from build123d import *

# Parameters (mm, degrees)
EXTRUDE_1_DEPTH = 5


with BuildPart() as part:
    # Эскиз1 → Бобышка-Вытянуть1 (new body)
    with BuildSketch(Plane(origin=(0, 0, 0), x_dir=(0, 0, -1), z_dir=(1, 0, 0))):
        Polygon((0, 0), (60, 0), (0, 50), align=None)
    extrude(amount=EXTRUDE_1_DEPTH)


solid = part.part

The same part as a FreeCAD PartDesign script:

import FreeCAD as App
import Part
import Sketcher

V = App.Vector
Q = App.Units.Quantity

doc = App.newDocument("Part")
body = doc.addObject("PartDesign::Body", "Body")

# Sketch on YZ plane
sketch1 = body.newObject("Sketcher::SketchObject", "Sketch")
sketch1.AttachmentSupport = (doc.getObject("YZ_Plane"), [""])
sketch1.MapMode = "FlatFace"
sketch1.addGeometry(Part.LineSegment(V(0, 0, 0), V(0, -60, 0)), False)
sketch1.addGeometry(Part.LineSegment(V(0, -60, 0), V(50, 0, 0)), False)
sketch1.addGeometry(Part.LineSegment(V(50, 0, 0), V(0, 0, 0)), False)
sketch1.addConstraint(Sketcher.Constraint("Coincident", 0, 2, 1, 1))
sketch1.addConstraint(Sketcher.Constraint("Coincident", 1, 2, 2, 1))
sketch1.addConstraint(Sketcher.Constraint("Coincident", 2, 2, 0, 1))
sketch1.addConstraint(Sketcher.Constraint("Vertical", 0))
sketch1.addConstraint(Sketcher.Constraint("Horizontal", 2))
sketch1.addConstraint(Sketcher.Constraint("Coincident", 2, 2, -1, 1))
sketch1.addConstraint(Sketcher.Constraint("DistanceX", 2, 2, 2, 1, Q("50 mm")))
sketch1.addConstraint(Sketcher.Constraint("DistanceY", 0, 2, 0, 1, Q("60 mm")))
pad1 = body.newObject("PartDesign::Pad", "Pad")
pad1.Profile = sketch1
pad1.Length = 5

doc.recompute()
